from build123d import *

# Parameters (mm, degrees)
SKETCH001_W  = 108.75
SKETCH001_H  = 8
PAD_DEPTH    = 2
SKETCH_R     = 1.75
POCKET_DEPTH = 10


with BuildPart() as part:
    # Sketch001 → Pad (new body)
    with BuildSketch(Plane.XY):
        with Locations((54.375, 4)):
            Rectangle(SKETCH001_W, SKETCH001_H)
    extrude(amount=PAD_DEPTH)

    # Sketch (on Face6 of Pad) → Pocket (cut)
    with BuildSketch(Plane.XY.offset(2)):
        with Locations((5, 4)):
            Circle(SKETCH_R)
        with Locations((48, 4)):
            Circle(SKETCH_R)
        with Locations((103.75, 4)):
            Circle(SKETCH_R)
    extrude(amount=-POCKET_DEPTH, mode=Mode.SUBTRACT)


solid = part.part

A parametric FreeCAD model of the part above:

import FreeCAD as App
import Part
import Sketcher

V = App.Vector


def add_polygon(sketch, points):
    """Adds a closed chain of lines whose ends are joined by coincident constraints."""
    first, n = sketch.GeometryCount, len(points)
    for a, b in zip(points, points[1:] + points[:1]):
        sketch.addGeometry(Part.LineSegment(App.Vector(*a, 0), App.Vector(*b, 0)), False)
    for i in range(n):
        sketch.addConstraint(Sketcher.Constraint("Coincident", first + i, 2, first + (i + 1) % n, 1))

doc = App.newDocument("Part")
body = doc.addObject("PartDesign::Body", "Body")

# Sketch on XY plane
sketch1 = doc.addObject("Sketcher::SketchObject", "Sketch")
body.addObject(sketch1)
sketch1.AttachmentSupport = (doc.XY_Plane, [""])
sketch1.MapMode = "FlatFace"
add_polygon(sketch1, [(0, 8), (0, 0), (108.75, 0), (108.75, 8)])  # lines 0-3
sketch1.addConstraint(Sketcher.Constraint("Vertical", 0))
sketch1.addConstraint(Sketcher.Constraint("Horizontal", 1))
sketch1.addConstraint(Sketcher.Constraint("Vertical", 2))
sketch1.addConstraint(Sketcher.Constraint("Horizontal", 3))
sketch1.addConstraint(Sketcher.Constraint("Coincident", 0, 2, -1, 1))
sketch1.addConstraint(Sketcher.Constraint("DistanceY", 0, 2, 0, 1, 8.0))
sketch1.addConstraint(Sketcher.Constraint("DistanceX", 1, 1, 1, 2, 108.75))
pad1 = doc.addObject("PartDesign::Pad", "Pad")
body.addObject(pad1)
pad1.Profile = sketch1
pad1.Length = 2

# Sketch on XY plane
sketch2 = doc.addObject("Sketcher::SketchObject", "Sketch001")
body.addObject(sketch2)
sketch2.AttachmentSupport = (doc.XY_Plane, [""])
sketch2.MapMode = "FlatFace"
sketch2.AttachmentOffset = App.Placement(V(0, 0, 2), App.Rotation())
sketch2.addGeometry(Part.Circle(V(5, 4, 0), V(0, 0, 1), 1.75), False)
sketch2.addGeometry(Part.Circle(V(48, 4, 0), V(0, 0, 1), 1.75), False)
sketch2.addGeometry(Part.Circle(V(103.75, 4, 0), V(0, 0, 1), 1.75), False)
sketch2.addConstraint(Sketcher.Constraint("Equal", 0, 1))
sketch2.addConstraint(Sketcher.Constraint("Equal", 1, 2))
sketch2.addConstraint(Sketcher.Constraint("Horizontal", 0, 3, 1, 3))
sketch2.addConstraint(Sketcher.Constraint("Horizontal", 1, 3, 2, 3))
sketch2.addConstraint(Sketcher.Constraint("Diameter", 0, 3.5))
sketch2.addConstraint(Sketcher.Constraint("DistanceX", -1, 1, 0, 3, 5.0))
sketch2.addConstraint(Sketcher.Constraint("DistanceY", -1, 1, 0, 3, 4.0))
sketch2.addConstraint(Sketcher.Constraint("DistanceX", -1, 1, 1, 3, 48.0))
sketch2.addConstraint(Sketcher.Constraint("DistanceX", -1, 1, 2, 3, 103.75))
pocket1 = doc.addObject("PartDesign::Pocket", "Pocket")
body.addObject(pocket1)
pocket1.Profile = sketch2
pocket1.Length = 10

doc.recompute()
